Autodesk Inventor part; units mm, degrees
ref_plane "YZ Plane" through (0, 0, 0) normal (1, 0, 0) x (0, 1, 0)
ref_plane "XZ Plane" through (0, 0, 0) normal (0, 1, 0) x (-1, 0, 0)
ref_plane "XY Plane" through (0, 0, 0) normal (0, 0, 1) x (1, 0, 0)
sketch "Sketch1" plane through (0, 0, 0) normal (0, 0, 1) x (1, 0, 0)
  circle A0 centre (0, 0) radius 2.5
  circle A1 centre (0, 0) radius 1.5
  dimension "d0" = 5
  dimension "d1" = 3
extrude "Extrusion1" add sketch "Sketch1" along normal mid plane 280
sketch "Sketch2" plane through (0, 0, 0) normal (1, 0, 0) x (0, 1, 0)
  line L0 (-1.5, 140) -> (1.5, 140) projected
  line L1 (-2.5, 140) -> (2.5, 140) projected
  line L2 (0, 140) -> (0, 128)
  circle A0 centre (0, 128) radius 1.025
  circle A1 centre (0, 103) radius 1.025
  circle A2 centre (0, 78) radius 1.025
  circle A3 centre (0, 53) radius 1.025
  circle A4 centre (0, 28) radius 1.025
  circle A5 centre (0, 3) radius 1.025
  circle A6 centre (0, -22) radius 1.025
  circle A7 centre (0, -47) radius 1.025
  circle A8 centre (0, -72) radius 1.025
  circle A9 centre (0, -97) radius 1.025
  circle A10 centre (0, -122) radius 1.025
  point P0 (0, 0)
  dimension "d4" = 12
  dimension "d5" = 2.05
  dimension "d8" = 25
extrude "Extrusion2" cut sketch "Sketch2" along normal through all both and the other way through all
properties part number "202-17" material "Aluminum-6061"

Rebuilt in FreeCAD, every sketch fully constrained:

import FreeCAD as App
import Part
import Sketcher

V = App.Vector
Q = App.Units.Quantity

doc = App.newDocument("Part")
body = doc.addObject("PartDesign::Body", "Body")

# Sketch on XY plane
sketch1 = body.newObject("Sketcher::SketchObject", "Sketch")
sketch1.AttachmentSupport = (doc.getObject("XY_Plane"), [""])
sketch1.MapMode = "FlatFace"
sketch1.addGeometry([
    Part.Circle(V(0, 0, 0), V(0, 0, 1), 2.5),
    Part.Circle(V(0, 0, 0), V(0, 0, 1), 1.5),
], False)
sketch1.addConstraint([
    Sketcher.Constraint("Coincident", 0, 3, -1, 1),
    Sketcher.Constraint("Coincident", 1, 3, -1, 1),
    Sketcher.Constraint("Diameter", 0, Q("5 mm")),
    Sketcher.Constraint("Diameter", 1, Q("3 mm")),
])
pad1 = body.newObject("PartDesign::Pad", "Pad")
pad1.Profile = sketch1
pad1.Length = 280
pad1.Midplane = True

# Sketch on YZ plane
sketch2 = body.newObject("Sketcher::SketchObject", "Sketch001")
sketch2.AttachmentSupport = (doc.getObject("YZ_Plane"), [""])
sketch2.MapMode = "FlatFace"
sketch2.addGeometry([
    Part.Circle(V(0, 128, 0), V(0, 0, 1), 1),  # 0
    Part.Circle(V(0, 103, 0), V(0, 0, 1), 1),  # 1
    Part.Circle(V(0, 78, 0), V(0, 0, 1), 1),  # 2
    Part.Circle(V(0, 53, 0), V(0, 0, 1), 1),  # 3
    Part.Circle(V(0, 28, 0), V(0, 0, 1), 1),  # 4
    Part.Circle(V(0, 3, 0), V(0, 0, 1), 1),  # 5
    Part.Circle(V(0, -22, 0), V(0, 0, 1), 1),  # 6
    Part.Circle(V(0, -47, 0), V(0, 0, 1), 1),  # 7
    Part.Circle(V(0, -72, 0), V(0, 0, 1), 1),  # 8
    Part.Circle(V(0, -97, 0), V(0, 0, 1), 1),  # 9
    Part.Circle(V(0, -122, 0), V(0, 0, 1), 1),  # 10
], False)
sketch2.addConstraint([
    Sketcher.Constraint("Equal", 0, 1),
    Sketcher.Constraint("Equal", 1, 2),
    Sketcher.Constraint("Equal", 2, 3),
    Sketcher.Constraint("Equal", 3, 4),
    Sketcher.Constraint("Equal", 4, 5),
    Sketcher.Constraint("Equal", 5, 6),
    Sketcher.Constraint("Equal", 6, 7),
    Sketcher.Constraint("Equal", 7, 8),
    Sketcher.Constraint("Equal", 8, 9),
    Sketcher.Constraint("Equal", 9, 10),
    Sketcher.Constraint("PointOnObject", 0, 3, -2),
    Sketcher.Constraint("PointOnObject", 1, 3, -2),
    Sketcher.Constraint("PointOnObject", 2, 3, -2),
    Sketcher.Constraint("PointOnObject", 3, 3, -2),
    Sketcher.Constraint("PointOnObject", 4, 3, -2),
    Sketcher.Constraint("PointOnObject", 5, 3, -2),
    Sketcher.Constraint("PointOnObject", 6, 3, -2),
    Sketcher.Constraint("PointOnObject", 7, 3, -2),
    Sketcher.Constraint("PointOnObject", 8, 3, -2),
    Sketcher.Constraint("PointOnObject", 9, 3, -2),
    Sketcher.Constraint("PointOnObject", 10, 3, -2),
    Sketcher.Constraint("Diameter", 0, Q("2.05 mm")),
    Sketcher.Constraint("DistanceY", 1, 3, 0, 3, Q("25 mm")),
    Sketcher.Constraint("DistanceY", 2, 3, 1, 3, Q("25 mm")),
    Sketcher.Constraint("DistanceY", 3, 3, 2, 3, Q("25 mm")),
    Sketcher.Constraint("DistanceY", 4, 3, 3, 3, Q("25 mm")),
    Sketcher.Constraint("DistanceY", 5, 3, 4, 3, Q("25 mm")),
    Sketcher.Constraint("DistanceY", 6, 3, 5, 3, Q("25 mm")),
    Sketcher.Constraint("DistanceY", 7, 3, 6, 3, Q("25 mm")),
    Sketcher.Constraint("DistanceY", 8, 3, 7, 3, Q("25 mm")),
    Sketcher.Constraint("DistanceY", 9, 3, 8, 3, Q("25 mm")),
    Sketcher.Constraint("DistanceY", 10, 3, 9, 3, Q("25 mm")),
    Sketcher.Constraint("DistanceY", -1, 1, 0, 3, Q("128 mm")),
])
pocket1 = body.newObject("PartDesign::Pocket", "Pocket")
pocket1.Profile = sketch2
pocket1.Type = "ThroughAll"
pocket1.Midplane = True

doc.recompute()
